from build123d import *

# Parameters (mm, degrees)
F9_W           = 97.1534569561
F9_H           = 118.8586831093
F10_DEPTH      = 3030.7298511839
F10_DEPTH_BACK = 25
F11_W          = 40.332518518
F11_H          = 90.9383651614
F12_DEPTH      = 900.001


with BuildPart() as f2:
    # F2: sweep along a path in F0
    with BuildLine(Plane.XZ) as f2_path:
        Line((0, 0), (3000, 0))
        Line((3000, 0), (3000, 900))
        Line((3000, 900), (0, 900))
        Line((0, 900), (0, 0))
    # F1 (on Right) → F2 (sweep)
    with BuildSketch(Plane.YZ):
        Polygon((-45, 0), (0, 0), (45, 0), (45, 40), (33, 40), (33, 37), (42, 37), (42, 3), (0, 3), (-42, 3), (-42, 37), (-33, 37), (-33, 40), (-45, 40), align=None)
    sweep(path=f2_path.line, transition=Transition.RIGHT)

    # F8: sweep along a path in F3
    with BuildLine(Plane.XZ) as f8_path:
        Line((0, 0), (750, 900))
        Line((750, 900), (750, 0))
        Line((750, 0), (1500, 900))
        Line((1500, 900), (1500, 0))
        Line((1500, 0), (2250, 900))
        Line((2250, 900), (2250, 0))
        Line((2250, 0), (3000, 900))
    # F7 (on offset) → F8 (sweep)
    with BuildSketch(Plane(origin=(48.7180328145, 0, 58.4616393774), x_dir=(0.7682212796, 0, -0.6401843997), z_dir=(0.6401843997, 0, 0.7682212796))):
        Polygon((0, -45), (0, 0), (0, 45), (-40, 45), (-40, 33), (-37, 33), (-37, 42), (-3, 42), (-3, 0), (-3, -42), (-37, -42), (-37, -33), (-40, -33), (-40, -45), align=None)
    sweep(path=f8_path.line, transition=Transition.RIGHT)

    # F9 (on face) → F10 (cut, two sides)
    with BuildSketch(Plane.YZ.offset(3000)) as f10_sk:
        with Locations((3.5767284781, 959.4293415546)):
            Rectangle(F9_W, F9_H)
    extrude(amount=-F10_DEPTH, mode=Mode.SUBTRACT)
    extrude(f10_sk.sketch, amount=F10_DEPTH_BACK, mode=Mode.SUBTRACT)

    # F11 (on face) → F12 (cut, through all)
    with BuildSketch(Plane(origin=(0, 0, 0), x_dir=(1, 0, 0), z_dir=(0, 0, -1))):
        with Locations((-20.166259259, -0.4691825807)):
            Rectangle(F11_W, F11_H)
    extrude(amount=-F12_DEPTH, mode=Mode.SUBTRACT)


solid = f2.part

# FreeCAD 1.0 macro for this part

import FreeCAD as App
import Part
import Sketcher
from FreeCAD import Vector
Q = App.Units.Quantity

doc = App.newDocument("Part")
body = doc.addObject("PartDesign::Body", "Body")

# Sketch on YZ plane
sketch1 = doc.addObject("Sketcher::SketchObject", "Sketch")
body.addObject(sketch1)
sketch1.AttachmentSupport = (doc.YZ_Plane, [""])
sketch1.MapMode = "FlatFace"
sketch1.addGeometry(Part.LineSegment(Vector(-45, 0, 0), Vector(45, 0, 0)), False)
sketch1.addGeometry(Part.LineSegment(Vector(45, 0, 0), Vector(45, 40, 0)), False)
sketch1.addGeometry(Part.LineSegment(Vector(45, 40, 0), Vector(33, 40, 0)), False)
sketch1.addGeometry(Part.LineSegment(Vector(33, 40, 0), Vector(33, 37, 0)), False)
sketch1.addGeometry(Part.LineSegment(Vector(33, 37, 0), Vector(42, 37, 0)), False)
sketch1.addGeometry(Part.LineSegment(Vector(42, 37, 0), Vector(42, 3, 0)), False)
sketch1.addGeometry(Part.LineSegment(Vector(42, 3, 0), Vector(-42, 3, 0)), False)
sketch1.addGeometry(Part.LineSegment(Vector(-42, 3, 0), Vector(-42, 37, 0)), False)
sketch1.addGeometry(Part.LineSegment(Vector(-42, 37, 0), Vector(-33, 37, 0)), False)
sketch1.addGeometry(Part.LineSegment(Vector(-33, 37, 0), Vector(-33, 40, 0)), False)
sketch1.addGeometry(Part.LineSegment(Vector(-33, 40, 0), Vector(-45, 40, 0)), False)
sketch1.addGeometry(Part.LineSegment(Vector(-45, 40, 0), Vector(-45, 0, 0)), False)
sketch1.addConstraint(Sketcher.Constraint("Coincident", 0, 2, 1, 1))
sketch1.addConstraint(Sketcher.Constraint("Coincident", 1, 2, 2, 1))
sketch1.addConstraint(Sketcher.Constraint("Coincident", 2, 2, 3, 1))
sketch1.addConstraint(Sketcher.Constraint("Coincident", 3, 2, 4, 1))
sketch1.addConstraint(Sketcher.Constraint("Coincident", 4, 2, 5, 1))
sketch1.addConstraint(Sketcher.Constraint("Coincident", 5, 2, 6, 1))
sketch1.addConstraint(Sketcher.Constraint("Coincident", 6, 2, 7, 1))
sketch1.addConstraint(Sketcher.Constraint("Coincident", 7, 2, 8, 1))
sketch1.addConstraint(Sketcher.Constraint("Coincident", 8, 2, 9, 1))
sketch1.addConstraint(Sketcher.Constraint("Coincident", 9, 2, 10, 1))
sketch1.addConstraint(Sketcher.Constraint("Coincident", 10, 2, 11, 1))
sketch1.addConstraint(Sketcher.Constraint("Coincident", 11, 2, 0, 1))
sketch1.addConstraint(Sketcher.Constraint("Horizontal", 0))
sketch1.addConstraint(Sketcher.Constraint("Vertical", 1))
sketch1.addConstraint(Sketcher.Constraint("Horizontal", 2))
sketch1.addConstraint(Sketcher.Constraint("Vertical", 3))
sketch1.addConstraint(Sketcher.Constraint("Horizontal", 4))
sketch1.addConstraint(Sketcher.Constraint("Vertical", 5))
sketch1.addConstraint(Sketcher.Constraint("Horizontal", 6))
sketch1.addConstraint(Sketcher.Constraint("Vertical", 7))
sketch1.addConstraint(Sketcher.Constraint("Horizontal", 8))
sketch1.addConstraint(Sketcher.Constraint("Vertical", 9))
sketch1.addConstraint(Sketcher.Constraint("Horizontal", 10))
sketch1.addConstraint(Sketcher.Constraint("Vertical", 11))
sketch1.addConstraint(Sketcher.Constraint("Symmetric", 0, 2, 11, 2, -1, 1))
sketch1.addConstraint(Sketcher.Constraint("Symmetric", 4, 2, 7, 2, -2))
sketch1.addConstraint(Sketcher.Constraint("Symmetric", 2, 2, 9, 2, -2))
sketch1.addConstraint(Sketcher.Constraint("DistanceX", 0, 1, 0, 2, Q("90 mm")))
sketch1.addConstraint(Sketcher.Constraint("DistanceX", 2, 2, 2, 1, Q("12 mm")))
sketch1.addConstraint(Sketcher.Constraint("DistanceX", 4, 1, 4, 2, Q("9 mm")))
sketch1.addConstraint(Sketcher.Constraint("DistanceY", 1, 1, 1, 2, Q("40 mm")))
sketch1.addConstraint(Sketcher.Constraint("DistanceY", 3, 2, 3, 1, Q("3 mm")))
sketch1.addConstraint(Sketcher.Constraint("DistanceY", 5, 2, 5, 1, Q("34 mm")))

# Sketch on XZ plane
sketch2 = doc.addObject("Sketcher::SketchObject", "Sketch001")
body.addObject(sketch2)
sketch2.AttachmentSupport = (doc.XZ_Plane, [""])
sketch2.MapMode = "FlatFace"
sketch2.addGeometry(Part.LineSegment(Vector(0, 0, 0), Vector(3000, 0, 0)), False)
sketch2.addGeometry(Part.LineSegment(Vector(3000, 0, 0), Vector(3000, 900, 0)), False)
sketch2.addGeometry(Part.LineSegment(Vector(3000, 900, 0), Vector(0, 900, 0)), False)
sketch2.addGeometry(Part.LineSegment(Vector(0, 900, 0), Vector(0, 0, 0)), False)
sketch2.addConstraint(Sketcher.Constraint("Coincident", 0, 2, 1, 1))
sketch2.addConstraint(Sketcher.Constraint("Coincident", 1, 2, 2, 1))
sketch2.addConstraint(Sketcher.Constraint("Coincident", 2, 2, 3, 1))
sketch2.addConstraint(Sketcher.Constraint("Coincident", 3, 2, 0, 1))
sketch2.addConstraint(Sketcher.Constraint("Horizontal", 0))
sketch2.addConstraint(Sketcher.Constraint("Vertical", 1))
sketch2.addConstraint(Sketcher.Constraint("Horizontal", 2))
sketch2.addConstraint(Sketcher.Constraint("Vertical", 3))
sketch2.addConstraint(Sketcher.Constraint("Coincident", 3, 2, -1, 1))
sketch2.addConstraint(Sketcher.Constraint("DistanceX", 0, 1, 0, 2, Q("3000 mm")))
sketch2.addConstraint(Sketcher.Constraint("DistanceY", 1, 1, 1, 2, Q("900 mm")))
doc.recompute()

additivepipe = doc.addObject("PartDesign::AdditivePipe", "AdditivePipe")
body.addObject(additivepipe)
additivepipe.Profile = sketch1
additivepipe.Spine = (sketch2, ["Edge1", "Edge2", "Edge3", "Edge4"])
additivepipe.Transition = "Right corner"

# Sketch on an angled plane
sketch3 = doc.addObject("Sketcher::SketchObject", "Sketch002")
body.addObject(sketch3)
sketch3.Placement = App.Placement(Vector(48.718033, 0, 58.461639), App.Rotation(Vector(0.76822128, 0, -0.6401844), Vector(0, 1.000000001, 0), Vector(0.6401844, 0, 0.76822128), "ZXY"))
sketch3.addGeometry(Part.LineSegment(Vector(0, -45, 0), Vector(0, 45, 0)), False)
sketch3.addGeometry(Part.LineSegment(Vector(0, 45, 0), Vector(-40, 45, 0)), False)
sketch3.addGeometry(Part.LineSegment(Vector(-40, 45, 0), Vector(-40, 33, 0)), False)
sketch3.addGeometry(Part.LineSegment(Vector(-40, 33, 0), Vector(-37, 33, 0)), False)
sketch3.addGeometry(Part.LineSegment(Vector(-37, 33, 0), Vector(-37, 42, 0)), False)
sketch3.addGeometry(Part.LineSegment(Vector(-37, 42, 0), Vector(-3, 42, 0)), False)
sketch3.addGeometry(Part.LineSegment(Vector(-3, 42, 0), Vector(-3, -42, 0)), False)
sketch3.addGeometry(Part.LineSegment(Vector(-3, -42, 0), Vector(-37, -42, 0)), False)
sketch3.addGeometry(Part.LineSegment(Vector(-37, -42, 0), Vector(-37, -33, 0)), False)
sketch3.addGeometry(Part.LineSegment(Vector(-37, -33, 0), Vector(-40, -33, 0)), False)
sketch3.addGeometry(Part.LineSegment(Vector(-40, -33, 0), Vector(-40, -45, 0)), False)
sketch3.addGeometry(Part.LineSegment(Vector(-40, -45, 0), Vector(0, -45, 0)), False)
sketch3.addConstraint(Sketcher.Constraint("Coincident", 0, 2, 1, 1))
sketch3.addConstraint(Sketcher.Constraint("Coincident", 1, 2, 2, 1))
sketch3.addConstraint(Sketcher.Constraint("Coincident", 2, 2, 3, 1))
sketch3.addConstraint(Sketcher.Constraint("Coincident", 3, 2, 4, 1))
sketch3.addConstraint(Sketcher.Constraint("Coincident", 4, 2, 5, 1))
sketch3.addConstraint(Sketcher.Constraint("Coincident", 5, 2, 6, 1))
sketch3.addConstraint(Sketcher.Constraint("Coincident", 6, 2, 7, 1))
sketch3.addConstraint(Sketcher.Constraint("Coincident", 7, 2, 8, 1))
sketch3.addConstraint(Sketcher.Constraint("Coincident", 8, 2, 9, 1))
sketch3.addConstraint(Sketcher.Constraint("Coincident", 9, 2, 10, 1))
sketch3.addConstraint(Sketcher.Constraint("Coincident", 10, 2, 11, 1))
sketch3.addConstraint(Sketcher.Constraint("Coincident", 11, 2, 0, 1))
sketch3.addConstraint(Sketcher.Constraint("Vertical", 0))
sketch3.addConstraint(Sketcher.Constraint("Horizontal", 1))
sketch3.addConstraint(Sketcher.Constraint("Vertical", 2))
sketch3.addConstraint(Sketcher.Constraint("Horizontal", 3))
sketch3.addConstraint(Sketcher.Constraint("Vertical", 4))
sketch3.addConstraint(Sketcher.Constraint("Horizontal", 5))
sketch3.addConstraint(Sketcher.Constraint("Vertical", 6))
sketch3.addConstraint(Sketcher.Constraint("Horizontal", 7))
sketch3.addConstraint(Sketcher.Constraint("Vertical", 8))
sketch3.addConstraint(Sketcher.Constraint("Horizontal", 9))
sketch3.addConstraint(Sketcher.Constraint("Vertical", 10))
sketch3.addConstraint(Sketcher.Constraint("Horizontal", 11))
sketch3.addConstraint(Sketcher.Constraint("Symmetric", 0, 2, 11, 2, -1, 1))
sketch3.addConstraint(Sketcher.Constraint("Symmetric", 4, 2, 7, 2, -1))
sketch3.addConstraint(Sketcher.Constraint("Symmetric", 2, 2, 9, 2, -1))
sketch3.addConstraint(Sketcher.Constraint("DistanceX", 1, 2, 1, 1, Q("40 mm")))
sketch3.addConstraint(Sketcher.Constraint("DistanceX", 3, 1, 3, 2, Q("3 mm")))
sketch3.addConstraint(Sketcher.Constraint("DistanceX", 5, 1, 5, 2, Q("34 mm")))
sketch3.addConstraint(Sketcher.Constraint("DistanceY", 0, 1, 0, 2, Q("90 mm")))
sketch3.addConstraint(Sketcher.Constraint("DistanceY", 2, 2, 2, 1, Q("12 mm")))
sketch3.addConstraint(Sketcher.Constraint("DistanceY", 4, 1, 4, 2, Q("9 mm")))

# Sketch on XZ plane
sketch4 = doc.addObject("Sketcher::SketchObject", "Sketch003")
body.addObject(sketch4)
sketch4.AttachmentSupport = (doc.XZ_Plane, [""])
sketch4.MapMode = "FlatFace"
sketch4.addGeometry(Part.LineSegment(Vector(0, 0, 0), Vector(750, 900, 0)), False)
sketch4.addGeometry(Part.LineSegment(Vector(750, 900, 0), Vector(750, 0, 0)), False)
sketch4.addGeometry(Part.LineSegment(Vector(750, 0, 0), Vector(1500, 900, 0)), False)
sketch4.addGeometry(Part.LineSegment(Vector(1500, 900, 0), Vector(1500, 0, 0)), False)
sketch4.addGeometry(Part.LineSegment(Vector(1500, 0, 0), Vector(2250, 900, 0)), False)
sketch4.addGeometry(Part.LineSegment(Vector(2250, 900, 0), Vector(2250, 0, 0)), False)
sketch4.addGeometry(Part.LineSegment(Vector(2250, 0, 0), Vector(3000, 900, 0)), False)
sketch4.addConstraint(Sketcher.Constraint("Coincident", 0, 2, 1, 1))
sketch4.addConstraint(Sketcher.Constraint("Coincident", 1, 2, 2, 1))
sketch4.addConstraint(Sketcher.Constraint("Coincident", 2, 2, 3, 1))
sketch4.addConstraint(Sketcher.Constraint("Coincident", 3, 2, 4, 1))
sketch4.addConstraint(Sketcher.Constraint("Coincident", 4, 2, 5, 1))
sketch4.addConstraint(Sketcher.Constraint("Coincident", 5, 2, 6, 1))
sketch4.addConstraint(Sketcher.Constraint("Vertical", 1))
sketch4.addConstraint(Sketcher.Constraint("Vertical", 3))
sketch4.addConstraint(Sketcher.Constraint("Vertical", 5))
sketch4.addConstraint(Sketcher.Constraint("Coincident", 0, 1, -1, 1))
sketch4.addConstraint(Sketcher.Constraint("PointOnObject", 1, 2, -1))
sketch4.addConstraint(Sketcher.Constraint("PointOnObject", 3, 2, -1))
sketch4.addConstraint(Sketcher.Constraint("PointOnObject", 5, 2, -1))
sketch4.addConstraint(Sketcher.Constraint("Parallel", 0, 2))
sketch4.addConstraint(Sketcher.Constraint("Parallel", 2, 4))
sketch4.addConstraint(Sketcher.Constraint("Parallel", 4, 6))
sketch4.addConstraint(Sketcher.Constraint("Horizontal", 0, 2, 2, 2))
sketch4.addConstraint(Sketcher.Constraint("Horizontal", 2, 2, 4, 2))
sketch4.addConstraint(Sketcher.Constraint("Horizontal", 4, 2, 6, 2))
sketch4.addConstraint(Sketcher.Constraint("DistanceY", 1, 2, 1, 1, Q("900 mm")))
sketch4.addConstraint(Sketcher.Constraint("DistanceX", -1, 1, 0, 2, Q("750 mm")))
doc.recompute()

additivepipe2 = doc.addObject("PartDesign::AdditivePipe", "AdditivePipe001")
body.addObject(additivepipe2)
additivepipe2.Profile = sketch3
additivepipe2.Spine = (sketch4, ["Edge1", "Edge2", "Edge3", "Edge4", "Edge5", "Edge6", "Edge7"])
additivepipe2.Transition = "Right corner"

# Sketch on YZ plane
sketch5 = doc.addObject("Sketcher::SketchObject", "Sketch004")
body.addObject(sketch5)
sketch5.AttachmentSupport = (doc.YZ_Plane, [""])
sketch5.MapMode = "FlatFace"
sketch5.AttachmentOffset = App.Placement(Vector(0, 0, 3000), App.Rotation())
sketch5.addGeometry(Part.LineSegment(Vector(-45, 1019, 0), Vector(-45, 900, 0)), False)
sketch5.addGeometry(Part.LineSegment(Vector(-45, 900, 0), Vector(52, 900, 0)), False)
sketch5.addGeometry(Part.LineSegment(Vector(52, 900, 0), Vector(52, 1019, 0)), False)
sketch5.addGeometry(Part.LineSegment(Vector(52, 1019, 0), Vector(-45, 1019, 0)), False)
sketch5.addConstraint(Sketcher.Constraint("Coincident", 0, 2, 1, 1))
sketch5.addConstraint(Sketcher.Constraint("Coincident", 1, 2, 2, 1))
sketch5.addConstraint(Sketcher.Constraint("Coincident", 2, 2, 3, 1))
sketch5.addConstraint(Sketcher.Constraint("Coincident", 3, 2, 0, 1))
sketch5.addConstraint(Sketcher.Constraint("Vertical", 0))
sketch5.addConstraint(Sketcher.Constraint("Horizontal", 1))
sketch5.addConstraint(Sketcher.Constraint("Vertical", 2))
sketch5.addConstraint(Sketcher.Constraint("Horizontal", 3))
sketch5.addConstraint(Sketcher.Constraint("DistanceX", 0, 2, -1, 1, Q("45 mm")))
sketch5.addConstraint(Sketcher.Constraint("DistanceY", -1, 1, 0, 2, Q("900 mm")))
sketch5.addConstraint(Sketcher.Constraint("DistanceX", 1, 1, 1, 2, Q("97.153457 mm")))
sketch5.addConstraint(Sketcher.Constraint("DistanceY", 0, 2, 0, 1, Q("118.858683 mm")))
pocket1 = doc.addObject("PartDesign::Pocket", "Pocket")
body.addObject(pocket1)
pocket1.Profile = sketch5
pocket1.Type = "ThroughAll"
pocket1.Midplane = True

# Sketch on XY plane
sketch6 = doc.addObject("Sketcher::SketchObject", "Sketch005")
body.addObject(sketch6)
sketch6.AttachmentSupport = (doc.XY_Plane, [""])
sketch6.MapMode = "FlatFace"
sketch6.addGeometry(Part.LineSegment(Vector(-40, -45, 0), Vector(-40, 46, 0)), False)
sketch6.addGeometry(Part.LineSegment(Vector(-40, 46, 0), Vector(0, 46, 0)), False)
sketch6.addGeometry(Part.LineSegment(Vector(0, 46, 0), Vector(0, -45, 0)), False)
sketch6.addGeometry(Part.LineSegment(Vector(0, -45, 0), Vector(-40, -45, 0)), False)
sketch6.addConstraint(Sketcher.Constraint("Coincident", 0, 2, 1, 1))
sketch6.addConstraint(Sketcher.Constraint("Coincident", 1, 2, 2, 1))
sketch6.addConstraint(Sketcher.Constraint("Coincident", 2, 2, 3, 1))
sketch6.addConstraint(Sketcher.Constraint("Coincident", 3, 2, 0, 1))
sketch6.addConstraint(Sketcher.Constraint("Vertical", 0))
sketch6.addConstraint(Sketcher.Constraint("Horizontal", 1))
sketch6.addConstraint(Sketcher.Constraint("Vertical", 2))
sketch6.addConstraint(Sketcher.Constraint("Horizontal", 3))
sketch6.addConstraint(Sketcher.Constraint("PointOnObject", 1, 2, -2))
sketch6.addConstraint(Sketcher.Constraint("DistanceY", 2, 2, -1, 1, Q("45 mm")))
sketch6.addConstraint(Sketcher.Constraint("DistanceX", 1, 1, 1, 2, Q("40.332519 mm")))
sketch6.addConstraint(Sketcher.Constraint("DistanceY", 0, 1, 0, 2, Q("90.938365 mm")))
pocket2 = doc.addObject("PartDesign::Pocket", "Pocket001")
body.addObject(pocket2)
pocket2.Profile = sketch6
pocket2.Type = "ThroughAll"
pocket2.Reversed = True

doc.recompute()
